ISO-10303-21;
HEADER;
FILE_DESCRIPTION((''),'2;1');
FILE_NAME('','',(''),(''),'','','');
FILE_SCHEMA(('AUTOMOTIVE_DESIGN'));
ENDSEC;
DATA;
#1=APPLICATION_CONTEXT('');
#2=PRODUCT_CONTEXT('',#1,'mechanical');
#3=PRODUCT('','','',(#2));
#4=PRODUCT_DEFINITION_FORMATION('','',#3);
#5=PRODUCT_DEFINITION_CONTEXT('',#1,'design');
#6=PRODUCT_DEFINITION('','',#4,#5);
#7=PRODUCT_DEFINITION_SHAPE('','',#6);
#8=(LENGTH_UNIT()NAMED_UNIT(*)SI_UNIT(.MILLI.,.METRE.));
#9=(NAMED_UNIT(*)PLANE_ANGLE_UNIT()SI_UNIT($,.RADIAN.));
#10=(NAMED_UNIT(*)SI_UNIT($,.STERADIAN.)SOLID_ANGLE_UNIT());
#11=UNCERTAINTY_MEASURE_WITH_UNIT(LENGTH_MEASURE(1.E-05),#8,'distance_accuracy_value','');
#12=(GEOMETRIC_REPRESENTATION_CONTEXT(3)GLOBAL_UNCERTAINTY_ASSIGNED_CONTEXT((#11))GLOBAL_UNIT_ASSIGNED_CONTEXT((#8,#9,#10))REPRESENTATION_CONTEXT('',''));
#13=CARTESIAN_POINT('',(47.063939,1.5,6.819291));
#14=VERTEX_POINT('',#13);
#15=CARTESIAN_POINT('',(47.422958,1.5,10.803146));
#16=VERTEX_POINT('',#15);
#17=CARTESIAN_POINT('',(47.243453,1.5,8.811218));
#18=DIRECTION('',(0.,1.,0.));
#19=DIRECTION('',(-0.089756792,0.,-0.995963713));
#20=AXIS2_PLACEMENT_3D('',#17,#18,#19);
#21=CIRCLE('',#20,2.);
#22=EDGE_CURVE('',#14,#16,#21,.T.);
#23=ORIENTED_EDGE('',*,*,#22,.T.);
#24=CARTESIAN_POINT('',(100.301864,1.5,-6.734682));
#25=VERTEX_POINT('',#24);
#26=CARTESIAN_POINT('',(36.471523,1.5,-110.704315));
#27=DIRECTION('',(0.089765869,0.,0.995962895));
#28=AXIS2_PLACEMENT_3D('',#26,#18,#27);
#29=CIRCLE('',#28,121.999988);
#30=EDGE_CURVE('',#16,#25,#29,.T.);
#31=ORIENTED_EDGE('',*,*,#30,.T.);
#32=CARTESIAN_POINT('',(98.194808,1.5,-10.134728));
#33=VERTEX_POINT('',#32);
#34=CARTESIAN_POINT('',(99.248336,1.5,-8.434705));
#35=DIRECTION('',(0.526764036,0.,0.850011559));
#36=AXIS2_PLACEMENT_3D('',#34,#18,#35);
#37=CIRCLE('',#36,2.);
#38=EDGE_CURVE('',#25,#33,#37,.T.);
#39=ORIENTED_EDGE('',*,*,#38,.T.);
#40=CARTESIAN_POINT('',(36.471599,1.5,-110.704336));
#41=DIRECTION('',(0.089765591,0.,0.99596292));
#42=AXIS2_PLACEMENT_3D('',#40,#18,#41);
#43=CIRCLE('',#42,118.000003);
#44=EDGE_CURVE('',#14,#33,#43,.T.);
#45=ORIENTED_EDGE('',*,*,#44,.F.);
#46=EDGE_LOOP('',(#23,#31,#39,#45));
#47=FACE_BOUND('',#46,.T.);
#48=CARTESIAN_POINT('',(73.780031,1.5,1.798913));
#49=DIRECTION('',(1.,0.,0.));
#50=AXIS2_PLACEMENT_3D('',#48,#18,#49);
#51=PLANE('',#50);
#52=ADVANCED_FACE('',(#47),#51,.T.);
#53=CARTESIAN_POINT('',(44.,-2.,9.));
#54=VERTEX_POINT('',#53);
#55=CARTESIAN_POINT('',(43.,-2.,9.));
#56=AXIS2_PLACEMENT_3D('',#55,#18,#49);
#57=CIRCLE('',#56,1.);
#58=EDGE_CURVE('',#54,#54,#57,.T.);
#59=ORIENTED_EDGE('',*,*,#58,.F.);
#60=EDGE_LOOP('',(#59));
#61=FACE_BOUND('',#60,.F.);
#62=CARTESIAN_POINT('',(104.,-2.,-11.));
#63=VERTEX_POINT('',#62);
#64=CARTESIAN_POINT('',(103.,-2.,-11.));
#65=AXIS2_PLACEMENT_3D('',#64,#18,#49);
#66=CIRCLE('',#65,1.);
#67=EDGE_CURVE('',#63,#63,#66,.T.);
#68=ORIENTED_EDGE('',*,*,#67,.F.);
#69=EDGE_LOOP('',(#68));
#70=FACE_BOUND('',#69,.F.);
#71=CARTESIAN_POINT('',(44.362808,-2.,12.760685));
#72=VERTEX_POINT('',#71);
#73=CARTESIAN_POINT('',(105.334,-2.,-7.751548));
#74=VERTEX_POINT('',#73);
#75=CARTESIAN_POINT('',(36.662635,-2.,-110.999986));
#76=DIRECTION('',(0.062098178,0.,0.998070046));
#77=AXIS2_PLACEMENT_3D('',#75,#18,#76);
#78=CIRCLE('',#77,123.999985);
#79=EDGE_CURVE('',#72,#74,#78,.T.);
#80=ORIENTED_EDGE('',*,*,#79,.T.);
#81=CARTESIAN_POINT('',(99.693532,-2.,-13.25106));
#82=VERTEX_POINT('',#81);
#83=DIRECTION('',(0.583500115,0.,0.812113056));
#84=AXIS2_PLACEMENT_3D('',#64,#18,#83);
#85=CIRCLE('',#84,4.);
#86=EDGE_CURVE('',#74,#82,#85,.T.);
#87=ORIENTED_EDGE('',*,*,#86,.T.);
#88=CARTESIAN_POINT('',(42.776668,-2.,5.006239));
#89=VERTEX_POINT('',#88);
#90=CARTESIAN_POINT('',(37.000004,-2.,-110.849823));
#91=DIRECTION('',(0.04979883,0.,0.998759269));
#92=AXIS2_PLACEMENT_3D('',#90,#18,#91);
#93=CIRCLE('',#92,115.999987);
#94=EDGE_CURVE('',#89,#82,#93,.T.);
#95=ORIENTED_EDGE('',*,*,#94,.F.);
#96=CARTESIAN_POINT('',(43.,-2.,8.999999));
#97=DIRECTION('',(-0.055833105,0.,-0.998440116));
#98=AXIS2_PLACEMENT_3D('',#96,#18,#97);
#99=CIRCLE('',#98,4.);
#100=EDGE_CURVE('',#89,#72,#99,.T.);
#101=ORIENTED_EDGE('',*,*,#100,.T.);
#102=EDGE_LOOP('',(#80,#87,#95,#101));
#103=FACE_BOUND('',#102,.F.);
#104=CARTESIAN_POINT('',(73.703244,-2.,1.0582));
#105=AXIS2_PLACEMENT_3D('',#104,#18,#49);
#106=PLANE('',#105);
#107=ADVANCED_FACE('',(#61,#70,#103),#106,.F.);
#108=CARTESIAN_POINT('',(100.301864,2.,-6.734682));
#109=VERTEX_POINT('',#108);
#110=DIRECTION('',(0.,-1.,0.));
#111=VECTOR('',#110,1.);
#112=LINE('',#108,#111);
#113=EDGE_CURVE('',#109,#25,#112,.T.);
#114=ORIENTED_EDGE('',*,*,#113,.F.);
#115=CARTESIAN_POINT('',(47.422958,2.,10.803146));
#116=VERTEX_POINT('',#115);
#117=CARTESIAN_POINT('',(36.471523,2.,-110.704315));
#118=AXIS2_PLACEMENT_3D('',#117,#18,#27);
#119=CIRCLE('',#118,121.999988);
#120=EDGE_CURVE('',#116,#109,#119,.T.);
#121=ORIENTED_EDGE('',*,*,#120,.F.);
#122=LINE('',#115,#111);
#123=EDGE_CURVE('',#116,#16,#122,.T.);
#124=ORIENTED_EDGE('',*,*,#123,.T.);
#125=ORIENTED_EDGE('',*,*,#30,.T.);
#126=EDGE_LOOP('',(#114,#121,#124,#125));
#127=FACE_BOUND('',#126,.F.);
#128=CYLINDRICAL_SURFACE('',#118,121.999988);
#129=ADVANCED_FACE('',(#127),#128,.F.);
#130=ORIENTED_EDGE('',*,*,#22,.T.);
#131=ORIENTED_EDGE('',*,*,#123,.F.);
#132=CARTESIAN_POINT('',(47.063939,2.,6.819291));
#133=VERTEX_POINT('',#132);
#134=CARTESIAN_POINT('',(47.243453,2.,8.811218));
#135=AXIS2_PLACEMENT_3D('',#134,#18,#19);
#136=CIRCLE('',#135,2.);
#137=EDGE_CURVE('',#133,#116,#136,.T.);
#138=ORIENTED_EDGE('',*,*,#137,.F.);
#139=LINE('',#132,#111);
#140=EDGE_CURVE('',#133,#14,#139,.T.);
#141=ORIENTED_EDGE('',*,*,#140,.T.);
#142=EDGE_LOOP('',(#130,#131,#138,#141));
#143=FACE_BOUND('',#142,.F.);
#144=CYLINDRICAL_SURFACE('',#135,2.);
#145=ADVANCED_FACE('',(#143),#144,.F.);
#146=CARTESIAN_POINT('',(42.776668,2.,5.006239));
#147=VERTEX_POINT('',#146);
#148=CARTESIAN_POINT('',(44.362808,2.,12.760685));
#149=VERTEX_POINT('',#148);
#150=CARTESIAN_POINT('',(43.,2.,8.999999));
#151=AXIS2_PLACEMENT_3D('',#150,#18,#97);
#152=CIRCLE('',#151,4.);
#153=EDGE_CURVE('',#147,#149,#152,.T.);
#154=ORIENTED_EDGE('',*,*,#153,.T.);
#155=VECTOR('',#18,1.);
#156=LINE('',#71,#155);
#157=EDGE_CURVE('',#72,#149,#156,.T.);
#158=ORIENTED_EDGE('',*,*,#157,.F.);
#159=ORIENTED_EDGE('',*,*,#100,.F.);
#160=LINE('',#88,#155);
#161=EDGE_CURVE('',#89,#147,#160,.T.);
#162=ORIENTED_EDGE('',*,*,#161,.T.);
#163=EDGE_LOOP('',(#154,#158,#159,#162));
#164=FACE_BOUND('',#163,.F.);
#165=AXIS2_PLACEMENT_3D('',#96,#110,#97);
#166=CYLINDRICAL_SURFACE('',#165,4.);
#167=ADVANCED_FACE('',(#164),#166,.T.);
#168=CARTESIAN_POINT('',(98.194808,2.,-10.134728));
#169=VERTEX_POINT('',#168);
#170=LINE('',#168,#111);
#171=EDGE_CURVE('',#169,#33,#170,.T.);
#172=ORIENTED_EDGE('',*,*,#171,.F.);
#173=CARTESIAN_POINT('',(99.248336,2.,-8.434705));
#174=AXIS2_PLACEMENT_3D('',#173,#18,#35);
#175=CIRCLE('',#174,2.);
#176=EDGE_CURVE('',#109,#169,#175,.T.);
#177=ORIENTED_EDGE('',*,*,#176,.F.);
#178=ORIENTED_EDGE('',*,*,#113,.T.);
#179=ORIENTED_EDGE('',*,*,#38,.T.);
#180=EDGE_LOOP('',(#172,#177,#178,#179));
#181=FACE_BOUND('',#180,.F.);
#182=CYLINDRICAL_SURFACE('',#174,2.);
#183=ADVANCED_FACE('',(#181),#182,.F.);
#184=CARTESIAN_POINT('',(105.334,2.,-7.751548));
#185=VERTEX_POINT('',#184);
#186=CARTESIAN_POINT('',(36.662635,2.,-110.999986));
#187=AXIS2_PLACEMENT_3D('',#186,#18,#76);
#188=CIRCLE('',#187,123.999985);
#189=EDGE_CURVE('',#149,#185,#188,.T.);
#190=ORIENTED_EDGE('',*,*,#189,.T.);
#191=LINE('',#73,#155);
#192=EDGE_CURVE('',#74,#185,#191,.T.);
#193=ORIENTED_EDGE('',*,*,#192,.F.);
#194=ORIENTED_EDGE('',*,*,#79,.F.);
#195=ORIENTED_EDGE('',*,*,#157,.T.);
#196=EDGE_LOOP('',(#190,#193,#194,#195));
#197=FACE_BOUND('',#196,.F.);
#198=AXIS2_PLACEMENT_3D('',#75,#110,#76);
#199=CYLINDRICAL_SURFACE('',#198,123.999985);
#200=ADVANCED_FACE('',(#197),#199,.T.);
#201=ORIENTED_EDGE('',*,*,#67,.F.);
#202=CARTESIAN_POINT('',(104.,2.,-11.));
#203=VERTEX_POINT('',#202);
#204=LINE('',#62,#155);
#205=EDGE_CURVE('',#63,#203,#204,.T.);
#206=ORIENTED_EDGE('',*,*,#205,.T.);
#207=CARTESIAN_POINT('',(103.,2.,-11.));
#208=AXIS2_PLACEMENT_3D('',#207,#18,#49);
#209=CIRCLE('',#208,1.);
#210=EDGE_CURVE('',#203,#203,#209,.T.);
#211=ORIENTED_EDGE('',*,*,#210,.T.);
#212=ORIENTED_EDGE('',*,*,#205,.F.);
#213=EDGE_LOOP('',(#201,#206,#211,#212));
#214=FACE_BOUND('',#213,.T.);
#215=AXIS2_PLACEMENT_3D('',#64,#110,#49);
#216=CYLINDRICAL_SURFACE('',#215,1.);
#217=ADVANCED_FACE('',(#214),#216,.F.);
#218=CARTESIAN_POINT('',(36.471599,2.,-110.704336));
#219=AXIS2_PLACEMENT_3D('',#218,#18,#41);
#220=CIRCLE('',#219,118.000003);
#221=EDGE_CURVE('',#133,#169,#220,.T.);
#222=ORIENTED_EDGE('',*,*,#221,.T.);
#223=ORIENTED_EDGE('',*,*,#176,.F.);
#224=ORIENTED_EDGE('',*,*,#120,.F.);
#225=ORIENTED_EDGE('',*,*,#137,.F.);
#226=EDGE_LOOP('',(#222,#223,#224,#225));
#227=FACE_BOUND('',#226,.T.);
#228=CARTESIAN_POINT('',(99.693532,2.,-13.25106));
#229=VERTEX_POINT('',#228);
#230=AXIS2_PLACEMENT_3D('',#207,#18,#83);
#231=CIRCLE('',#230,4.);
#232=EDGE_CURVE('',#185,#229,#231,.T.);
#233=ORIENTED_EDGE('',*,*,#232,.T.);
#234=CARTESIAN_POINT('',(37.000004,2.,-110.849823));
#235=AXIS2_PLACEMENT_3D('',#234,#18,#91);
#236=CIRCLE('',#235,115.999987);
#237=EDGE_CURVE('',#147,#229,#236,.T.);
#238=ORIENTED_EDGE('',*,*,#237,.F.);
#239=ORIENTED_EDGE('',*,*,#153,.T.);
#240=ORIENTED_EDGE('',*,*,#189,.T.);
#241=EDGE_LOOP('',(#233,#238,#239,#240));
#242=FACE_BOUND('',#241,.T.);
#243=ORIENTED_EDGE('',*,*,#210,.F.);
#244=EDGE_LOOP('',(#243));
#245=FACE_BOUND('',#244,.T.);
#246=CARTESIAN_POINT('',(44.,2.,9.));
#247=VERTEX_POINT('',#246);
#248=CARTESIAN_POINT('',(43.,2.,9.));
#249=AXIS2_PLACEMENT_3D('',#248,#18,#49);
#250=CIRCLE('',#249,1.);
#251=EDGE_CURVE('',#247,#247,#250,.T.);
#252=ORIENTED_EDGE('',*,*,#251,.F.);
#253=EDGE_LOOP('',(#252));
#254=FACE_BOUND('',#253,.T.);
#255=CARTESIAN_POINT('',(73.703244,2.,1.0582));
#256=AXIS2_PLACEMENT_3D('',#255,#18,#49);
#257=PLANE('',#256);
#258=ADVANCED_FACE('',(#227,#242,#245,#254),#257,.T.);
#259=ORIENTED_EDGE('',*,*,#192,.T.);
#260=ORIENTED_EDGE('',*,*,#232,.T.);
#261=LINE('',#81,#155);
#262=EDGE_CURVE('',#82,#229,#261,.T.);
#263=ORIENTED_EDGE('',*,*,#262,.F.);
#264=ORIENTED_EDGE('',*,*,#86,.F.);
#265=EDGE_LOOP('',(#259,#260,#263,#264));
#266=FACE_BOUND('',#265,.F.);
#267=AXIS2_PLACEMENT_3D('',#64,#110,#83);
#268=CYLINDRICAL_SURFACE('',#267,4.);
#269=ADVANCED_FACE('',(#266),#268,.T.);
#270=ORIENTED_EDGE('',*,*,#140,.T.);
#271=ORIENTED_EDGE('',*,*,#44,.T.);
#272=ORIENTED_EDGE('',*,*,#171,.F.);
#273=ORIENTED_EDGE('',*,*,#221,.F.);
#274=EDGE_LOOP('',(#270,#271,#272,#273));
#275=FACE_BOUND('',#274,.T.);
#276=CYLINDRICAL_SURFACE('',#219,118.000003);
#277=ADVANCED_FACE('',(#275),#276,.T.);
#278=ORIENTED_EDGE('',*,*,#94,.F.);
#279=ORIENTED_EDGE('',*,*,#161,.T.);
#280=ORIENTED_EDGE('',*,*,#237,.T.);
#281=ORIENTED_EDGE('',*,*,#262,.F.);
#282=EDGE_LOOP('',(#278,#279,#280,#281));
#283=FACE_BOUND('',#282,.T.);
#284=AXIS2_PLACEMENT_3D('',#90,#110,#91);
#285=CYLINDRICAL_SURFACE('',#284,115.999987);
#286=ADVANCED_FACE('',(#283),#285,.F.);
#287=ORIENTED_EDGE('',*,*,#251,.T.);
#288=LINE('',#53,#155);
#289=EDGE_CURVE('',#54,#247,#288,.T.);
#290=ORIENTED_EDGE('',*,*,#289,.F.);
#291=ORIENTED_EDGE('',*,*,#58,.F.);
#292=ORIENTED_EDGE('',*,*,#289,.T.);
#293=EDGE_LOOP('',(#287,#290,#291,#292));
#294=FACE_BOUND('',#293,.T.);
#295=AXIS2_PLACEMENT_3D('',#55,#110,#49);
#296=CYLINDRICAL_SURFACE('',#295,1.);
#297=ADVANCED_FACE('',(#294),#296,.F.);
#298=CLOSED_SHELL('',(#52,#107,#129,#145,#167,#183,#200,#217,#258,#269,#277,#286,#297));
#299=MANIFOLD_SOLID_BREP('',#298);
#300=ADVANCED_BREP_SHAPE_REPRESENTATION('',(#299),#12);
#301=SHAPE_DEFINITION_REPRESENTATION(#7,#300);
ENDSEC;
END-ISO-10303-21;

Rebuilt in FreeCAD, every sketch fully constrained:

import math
import FreeCAD as App
import Part
import Sketcher
from FreeCAD import Vector

doc = App.newDocument("Part")
params = doc.addObject("Spreadsheet::Sheet", "Params")
for row, (alias, value) in enumerate([
    ("sketch1_diameter", "2 mm"),
    ("sketch1_radius", "4 mm"),
    ("pad1_length", "4 mm"),
    ("sketch2_radius", "2 mm"),
    ("pocket1_length", "0.5 mm"),
], start=1):
    params.set(f"A{row}", alias)
    params.set(f"B{row}", "=" + value)
    params.setAlias(f"B{row}", alias)

body = doc.addObject("PartDesign::Body", "Body")

sketch1 = body.newObject("Sketcher::SketchObject", "Sketch")
sketch1.AttachmentSupport = (doc.getObject("XZ_Plane"), [""])
sketch1.MapMode = "FlatFace"
sketch1.AttachmentOffset = App.Placement(Vector(0, 0, 2), App.Rotation())
sketch1.addGeometry(Part.ArcOfCircle(Part.Circle(Vector(43, 8.999999, 0), Vector(0, 0, 1), 4), math.radians(70.080357), math.radians(266.799334)), False)
sketch1.addGeometry(Part.ArcOfCircle(Part.Circle(Vector(36.662635, -110.999986, 0), Vector(0, 0, 1), 123.999985), math.radians(56.371802), math.radians(86.439746)), False)
sketch1.addGeometry(Part.ArcOfCircle(Part.Circle(Vector(103, -11, 0), Vector(0, 0, 1), 4), math.radians(-145.752768), math.radians(54.302899)), False)
sketch1.addGeometry(Part.ArcOfCircle(Part.Circle(Vector(37.000004, -110.849823, 0), Vector(0, 0, 1), 115.999987), math.radians(57.284939), math.radians(87.145557)), False)
sketch1.addGeometry(Part.Circle(Vector(43, 9, 0), Vector(0, 0, 1), 1), False)
sketch1.addGeometry(Part.Circle(Vector(103, -11, 0), Vector(0, 0, 1), 1), False)
sketch1.addConstraint(Sketcher.Constraint("Coincident", 0, 1, 1, 2))
sketch1.addConstraint(Sketcher.Constraint("Coincident", 1, 1, 2, 2))
sketch1.addConstraint(Sketcher.Constraint("Coincident", 2, 1, 3, 1))
sketch1.addConstraint(Sketcher.Constraint("Coincident", 3, 2, 0, 2))
sketch1.addConstraint(Sketcher.Constraint("Coincident", 4, 3, 0, 3))
sketch1.addConstraint(Sketcher.Constraint("Coincident", 5, 3, 2, 3))
sketch1.addConstraint(Sketcher.Constraint("Equal", 0, 2))
sketch1.addConstraint(Sketcher.Constraint("Equal", 4, 5))
sketch1.addConstraint(Sketcher.Constraint("Diameter", 4, 2.0))
sketch1.addConstraint(Sketcher.Constraint("Radius", 0, 4.0))
sketch1.addConstraint(Sketcher.Constraint("DistanceX", -1, 1, 0, 3, 43.0))
sketch1.addConstraint(Sketcher.Constraint("DistanceY", -1, 1, 0, 3, 8.999999))
sketch1.addConstraint(Sketcher.Constraint("DistanceX", -1, 1, 2, 3, 103.0))
sketch1.addConstraint(Sketcher.Constraint("DistanceY", 2, 3, -1, 1, 11.0))
sketch1.addConstraint(Sketcher.Constraint("DistanceX", -1, 1, 1, 1, 105.334))
sketch1.addConstraint(Sketcher.Constraint("Radius", 1, 123.999985))
sketch1.addConstraint(Sketcher.Constraint("Radius", 3, 115.999987))
sketch1.addConstraint(Sketcher.Constraint("DistanceY", 2, 1, 3, 2, 18.257299))
sketch1.addConstraint(Sketcher.Constraint("DistanceX", -1, 1, 0, 1, 44.362808))
sketch1.addConstraint(Sketcher.Constraint("DistanceY", 2, 1, -1, 1, 13.25106))
sketch1.setExpression("Constraints[8]", "Params.sketch1_diameter")
sketch1.setExpression("Constraints[9]", "Params.sketch1_radius")
pad1 = body.newObject("PartDesign::Pad", "Pad")
pad1.Profile = sketch1
pad1.setExpression("Length", "Params.pad1_length")
pad1.Reversed = True

sketch2 = body.newObject("Sketcher::SketchObject", "Sketch001")
sketch2.AttachmentSupport = (doc.getObject("XZ_Plane"), [""])
sketch2.MapMode = "FlatFace"
sketch2.AttachmentOffset = App.Placement(Vector(0, 0, -2), App.Rotation())
sketch2.addGeometry(Part.ArcOfCircle(Part.Circle(Vector(36.5, -110.7, 0), Vector(0, 0, 1), 122), math.radians(58), math.radians(85)), False)
sketch2.addGeometry(Part.ArcOfCircle(Part.Circle(Vector(99.2, -8.4, 0), Vector(0, 0, 1), 2), math.radians(-122), math.radians(58)), False)
sketch2.addGeometry(Part.ArcOfCircle(Part.Circle(Vector(36.5, -110.7, 0), Vector(0, 0, 1), 118), math.radians(58), math.radians(85)), False)
sketch2.addGeometry(Part.ArcOfCircle(Part.Circle(Vector(47.2, 8.8, 0), Vector(0, 0, 1), 2), math.radians(85), math.radians(265)), False)
sketch2.addConstraint(Sketcher.Constraint("Coincident", 0, 1, 1, 2))
sketch2.addConstraint(Sketcher.Constraint("Coincident", 1, 1, 2, 1))
sketch2.addConstraint(Sketcher.Constraint("Coincident", 2, 2, 3, 2))
sketch2.addConstraint(Sketcher.Constraint("Coincident", 3, 1, 0, 2))
sketch2.addConstraint(Sketcher.Constraint("Equal", 1, 3))
sketch2.addConstraint(Sketcher.Constraint("Radius", 1, 2.0))
sketch2.addConstraint(Sketcher.Constraint("Radius", 0, 121.999988))
sketch2.addConstraint(Sketcher.Constraint("Radius", 2, 118.000003))
sketch2.addConstraint(Sketcher.Constraint("DistanceX", -1, 1, 2, 3, 36.471599))
sketch2.addConstraint(Sketcher.Constraint("DistanceY", 0, 1, 3, 3, 15.5459))
sketch2.addConstraint(Sketcher.Constraint("DistanceY", -1, 1, 3, 3, 8.811218))
sketch2.addConstraint(Sketcher.Constraint("DistanceY", 1, 1, -1, 1, 10.134728))
sketch2.addConstraint(Sketcher.Constraint("DistanceX", -1, 1, 2, 2, 47.063939))
sketch2.addConstraint(Sketcher.Constraint("DistanceY", -1, 1, 2, 2, 6.819291))
sketch2.addConstraint(Sketcher.Constraint("DistanceY", 0, 3, 1, 3, 102.26961))
sketch2.addConstraint(Sketcher.Constraint("DistanceX", 2, 2, 3, 1, 0.359019))
sketch2.setExpression("Constraints[5]", "Params.sketch2_radius")
pocket1 = body.newObject("PartDesign::Pocket", "Pocket")
pocket1.Profile = sketch2
pocket1.setExpression("Length", "Params.pocket1_length")
pocket1.Reversed = True

doc.recompute()
